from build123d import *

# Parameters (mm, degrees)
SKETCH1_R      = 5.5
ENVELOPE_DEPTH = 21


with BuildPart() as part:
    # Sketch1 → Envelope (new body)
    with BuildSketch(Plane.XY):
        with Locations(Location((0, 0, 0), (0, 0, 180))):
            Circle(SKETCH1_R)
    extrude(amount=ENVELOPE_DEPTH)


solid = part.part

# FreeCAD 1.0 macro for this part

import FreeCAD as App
import Part
import Sketcher
Q = App.Units.Quantity

doc = App.newDocument("Part")
body = doc.addObject("PartDesign::Body", "Body")

sketch1 = body.newObject("Sketcher::SketchObject", "Sketch")
sketch1.AttachmentSupport = (doc.getObject("XY_Plane"), [""])
sketch1.MapMode = "FlatFace"
sketch1.addGeometry(Part.Circle(App.Vector(0, 0, 0), App.Vector(0, 0, 1), 6), False)
sketch1.addConstraint([
    Sketcher.Constraint("Coincident", 0, 3, -1, 1),
    Sketcher.Constraint("Diameter", 0, Q("11 mm")),
])
pad1 = body.newObject("PartDesign::Pad", "Pad")
pad1.Profile = sketch1
pad1.Length = 21

doc.recompute()
